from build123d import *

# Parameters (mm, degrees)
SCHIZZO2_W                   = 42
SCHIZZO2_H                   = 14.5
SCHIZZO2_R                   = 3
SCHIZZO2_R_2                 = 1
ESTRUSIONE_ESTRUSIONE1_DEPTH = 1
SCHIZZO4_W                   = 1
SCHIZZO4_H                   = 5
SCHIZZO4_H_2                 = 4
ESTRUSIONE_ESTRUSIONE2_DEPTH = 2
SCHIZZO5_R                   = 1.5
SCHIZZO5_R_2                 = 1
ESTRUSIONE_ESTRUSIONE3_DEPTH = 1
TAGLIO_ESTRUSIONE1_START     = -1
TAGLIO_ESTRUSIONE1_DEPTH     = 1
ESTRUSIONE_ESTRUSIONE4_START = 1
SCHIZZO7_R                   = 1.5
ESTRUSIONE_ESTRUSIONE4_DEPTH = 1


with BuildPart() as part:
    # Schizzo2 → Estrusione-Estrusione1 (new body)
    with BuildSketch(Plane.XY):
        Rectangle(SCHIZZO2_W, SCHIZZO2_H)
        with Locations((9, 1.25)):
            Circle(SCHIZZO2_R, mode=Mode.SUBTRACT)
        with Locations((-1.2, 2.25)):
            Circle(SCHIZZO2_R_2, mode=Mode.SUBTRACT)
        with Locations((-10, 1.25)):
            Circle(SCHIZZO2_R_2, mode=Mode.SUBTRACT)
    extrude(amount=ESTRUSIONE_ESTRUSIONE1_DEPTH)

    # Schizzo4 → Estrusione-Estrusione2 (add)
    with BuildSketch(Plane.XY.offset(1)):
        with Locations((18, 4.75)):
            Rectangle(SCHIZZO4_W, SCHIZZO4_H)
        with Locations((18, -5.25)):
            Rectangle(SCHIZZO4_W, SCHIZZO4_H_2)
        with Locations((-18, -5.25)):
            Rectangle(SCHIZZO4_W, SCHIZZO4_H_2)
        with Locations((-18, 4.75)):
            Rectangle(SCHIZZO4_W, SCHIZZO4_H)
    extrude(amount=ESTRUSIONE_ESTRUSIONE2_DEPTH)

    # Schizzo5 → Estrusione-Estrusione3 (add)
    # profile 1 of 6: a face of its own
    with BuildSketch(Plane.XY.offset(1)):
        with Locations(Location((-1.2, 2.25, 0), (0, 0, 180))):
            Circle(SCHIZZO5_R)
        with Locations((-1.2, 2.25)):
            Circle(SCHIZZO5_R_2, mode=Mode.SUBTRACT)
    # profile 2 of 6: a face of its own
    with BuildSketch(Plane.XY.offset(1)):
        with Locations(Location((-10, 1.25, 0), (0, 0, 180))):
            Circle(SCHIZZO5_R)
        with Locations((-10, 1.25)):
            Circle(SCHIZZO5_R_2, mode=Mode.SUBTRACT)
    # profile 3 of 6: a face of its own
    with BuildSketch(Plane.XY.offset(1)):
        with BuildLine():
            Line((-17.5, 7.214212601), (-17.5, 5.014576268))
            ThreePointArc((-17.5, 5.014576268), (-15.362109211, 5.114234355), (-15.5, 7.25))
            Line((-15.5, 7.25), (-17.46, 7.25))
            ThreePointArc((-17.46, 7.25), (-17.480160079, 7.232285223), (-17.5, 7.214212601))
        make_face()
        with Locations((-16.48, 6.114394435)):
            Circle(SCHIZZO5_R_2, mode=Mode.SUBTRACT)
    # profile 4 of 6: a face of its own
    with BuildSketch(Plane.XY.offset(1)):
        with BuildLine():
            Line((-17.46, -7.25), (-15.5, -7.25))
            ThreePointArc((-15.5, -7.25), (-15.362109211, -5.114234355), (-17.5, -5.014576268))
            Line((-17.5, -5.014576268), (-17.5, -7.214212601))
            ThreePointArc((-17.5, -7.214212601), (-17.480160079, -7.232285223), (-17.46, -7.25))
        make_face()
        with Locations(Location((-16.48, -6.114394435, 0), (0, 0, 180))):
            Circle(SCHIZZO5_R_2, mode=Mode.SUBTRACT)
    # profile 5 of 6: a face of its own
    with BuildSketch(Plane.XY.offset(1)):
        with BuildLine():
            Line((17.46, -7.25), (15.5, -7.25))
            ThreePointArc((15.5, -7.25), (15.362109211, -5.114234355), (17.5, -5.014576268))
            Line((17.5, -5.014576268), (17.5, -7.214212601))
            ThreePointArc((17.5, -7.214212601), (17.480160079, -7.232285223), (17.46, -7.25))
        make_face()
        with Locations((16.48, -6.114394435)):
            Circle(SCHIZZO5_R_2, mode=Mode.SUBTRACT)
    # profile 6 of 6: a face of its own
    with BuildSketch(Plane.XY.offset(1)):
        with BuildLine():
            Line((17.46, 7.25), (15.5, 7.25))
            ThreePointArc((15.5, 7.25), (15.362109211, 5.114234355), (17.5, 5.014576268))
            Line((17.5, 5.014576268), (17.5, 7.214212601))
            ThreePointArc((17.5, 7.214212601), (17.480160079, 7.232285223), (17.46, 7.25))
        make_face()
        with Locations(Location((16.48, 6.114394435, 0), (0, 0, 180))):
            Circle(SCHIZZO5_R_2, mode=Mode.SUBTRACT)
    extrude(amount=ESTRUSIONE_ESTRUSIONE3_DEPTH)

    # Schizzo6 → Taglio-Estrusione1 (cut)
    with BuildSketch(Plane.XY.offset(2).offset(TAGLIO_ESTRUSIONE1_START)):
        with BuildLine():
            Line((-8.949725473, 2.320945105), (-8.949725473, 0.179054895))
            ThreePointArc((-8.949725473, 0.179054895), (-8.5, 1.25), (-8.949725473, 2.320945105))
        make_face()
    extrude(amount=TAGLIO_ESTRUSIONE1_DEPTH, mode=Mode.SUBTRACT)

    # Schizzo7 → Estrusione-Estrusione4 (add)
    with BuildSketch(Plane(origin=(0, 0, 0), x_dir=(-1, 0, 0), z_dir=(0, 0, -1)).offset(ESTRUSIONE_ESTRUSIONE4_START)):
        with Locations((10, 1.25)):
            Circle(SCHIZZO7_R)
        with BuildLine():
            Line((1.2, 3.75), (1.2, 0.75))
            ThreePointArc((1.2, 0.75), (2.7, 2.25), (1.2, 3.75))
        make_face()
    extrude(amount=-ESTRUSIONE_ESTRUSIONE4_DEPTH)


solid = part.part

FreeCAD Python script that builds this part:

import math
import FreeCAD as App
import Part
import Sketcher
Q = App.Units.Quantity


def add_polygon(sketch, points):
    """Adds a closed chain of lines whose ends are joined by coincident constraints."""
    first, n = sketch.GeometryCount, len(points)
    for a, b in zip(points, points[1:] + points[:1]):
        sketch.addGeometry(Part.LineSegment(App.Vector(*a, 0), App.Vector(*b, 0)), False)
    for i in range(n):
        sketch.addConstraint(Sketcher.Constraint("Coincident", first + i, 2, first + (i + 1) % n, 1))

doc = App.newDocument("Part")
body = doc.addObject("PartDesign::Body", "Body")

# Sketch on XY plane
sketch1 = body.newObject("Sketcher::SketchObject", "Sketch")
sketch1.AttachmentSupport = (doc.getObject("XY_Plane"), [""])
sketch1.MapMode = "FlatFace"
add_polygon(sketch1, [(-21, 7.25), (-21, -7.25), (21, -7.25), (21, 7.25)])  # lines 0-3
sketch1.addGeometry(Part.Circle(App.Vector(-10, 1.25, 0), App.Vector(0, 0, 1), 1), False)  # 4
sketch1.addGeometry(Part.Circle(App.Vector(-1.2, 2.25, 0), App.Vector(0, 0, 1), 1), False)  # 5
sketch1.addGeometry(Part.Circle(App.Vector(9, 1.25, 0), App.Vector(0, 0, 1), 3), False)  # 6
sketch1.addConstraint([
    Sketcher.Constraint("Vertical", 0),
    Sketcher.Constraint("Horizontal", 1),
    Sketcher.Constraint("Vertical", 2),
    Sketcher.Constraint("Horizontal", 3),
    Sketcher.Constraint("Equal", 4, 5),
    Sketcher.Constraint("Symmetric", 0, 2, 2, 2, -1, 1),
    Sketcher.Constraint("Horizontal", 4, 3, 6, 3),
    Sketcher.Constraint("Diameter", 4, Q("2 mm")),
    Sketcher.Constraint("Diameter", 6, Q("6 mm")),
    Sketcher.Constraint("DistanceX", 1, 1, 1, 2, Q("42 mm")),
    Sketcher.Constraint("DistanceY", 0, 2, 0, 1, Q("14.5 mm")),
    Sketcher.Constraint("DistanceX", 4, 3, -1, 1, Q("10 mm")),
    Sketcher.Constraint("DistanceX", -1, 1, 6, 3, Q("9 mm")),
    Sketcher.Constraint("DistanceY", 4, 3, 5, 3, Q("1 mm")),
    Sketcher.Constraint("DistanceY", 6, 3, 2, 2, Q("6 mm")),
    Sketcher.Constraint("DistanceX", 5, 3, -1, 1, Q("1.2 mm")),
])
pad1 = body.newObject("PartDesign::Pad", "Pad")
pad1.Profile = sketch1
pad1.Length = 1

# Sketch on XY plane
sketch2 = body.newObject("Sketcher::SketchObject", "Sketch001")
sketch2.AttachmentSupport = (doc.getObject("XY_Plane"), [""])
sketch2.MapMode = "FlatFace"
sketch2.AttachmentOffset = App.Placement(App.Vector(0, 0, 1), App.Rotation())
add_polygon(sketch2, [(17.5, 7.25), (17.5, 2.25), (18.5, 2.25), (18.5, 7.25)])  # lines 0-3
add_polygon(sketch2, [(17.5, -3.25), (17.5, -7.25), (18.5, -7.25), (18.5, -3.25)])  # lines 4-7
add_polygon(sketch2, [(-18.5, -3.25), (-18.5, -7.25), (-17.5, -7.25), (-17.5, -3.25)])  # lines 8-11
add_polygon(sketch2, [(-18.5, 7.25), (-18.5, 2.25), (-17.5, 2.25), (-17.5, 7.25)])  # lines 12-15
sketch2.addConstraint([
    Sketcher.Constraint("Vertical", 0),
    Sketcher.Constraint("Horizontal", 1),
    Sketcher.Constraint("Vertical", 2),
    Sketcher.Constraint("Horizontal", 3),
    Sketcher.Constraint("Vertical", 4),
    Sketcher.Constraint("Horizontal", 5),
    Sketcher.Constraint("Vertical", 6),
    Sketcher.Constraint("Horizontal", 7),
    Sketcher.Constraint("Vertical", 8),
    Sketcher.Constraint("Horizontal", 9),
    Sketcher.Constraint("Vertical", 10),
    Sketcher.Constraint("Horizontal", 11),
    Sketcher.Constraint("Vertical", 12),
    Sketcher.Constraint("Horizontal", 13),
    Sketcher.Constraint("Vertical", 14),
    Sketcher.Constraint("Horizontal", 15),
    Sketcher.Constraint("Symmetric", 2, 2, 8, 2, -1, 1),
    Sketcher.Constraint("Symmetric", 4, 2, 14, 2, -1, 1),
    Sketcher.Constraint("Symmetric", 5, 2, 8, 2, -2),
    Sketcher.Constraint("Symmetric", 7, 2, 10, 2, -2),
    Sketcher.Constraint("Symmetric", 1, 2, 12, 2, -2),
    Sketcher.Constraint("Vertical", 3, 2, 4, 2),
    Sketcher.Constraint("DistanceX", 1, 1, 1, 2, Q("1 mm")),
    Sketcher.Constraint("DistanceY", 0, 2, 0, 1, Q("5 mm")),
    Sketcher.Constraint("DistanceY", 4, 2, 4, 1, Q("4 mm")),
    Sketcher.Constraint("DistanceX", 8, 2, 4, 2, Q("36 mm")),
    Sketcher.Constraint("DistanceY", 4, 2, 0, 2, Q("9.5 mm")),
])
pad2 = body.newObject("PartDesign::Pad", "Pad001")
pad2.Profile = sketch2
pad2.Length = 2

# Sketch on XY plane
sketch3 = body.newObject("Sketcher::SketchObject", "Sketch002")
sketch3.AttachmentSupport = (doc.getObject("XY_Plane"), [""])
sketch3.MapMode = "FlatFace"
sketch3.AttachmentOffset = App.Placement(App.Vector(0, 0, 1), App.Rotation())
sketch3.addGeometry([
    Part.Circle(App.Vector(-1.2, 2.25, 0), App.Vector(0, 0, 1), 1.5),  # 0
    Part.Circle(App.Vector(-1.2, 2.25, 0), App.Vector(0, 0, 1), 1),  # 1
    Part.Circle(App.Vector(-10, 1.25, 0), App.Vector(0, 0, 1), 1.5),  # 2
    Part.Circle(App.Vector(-10, 1.25, 0), App.Vector(0, 0, 1), 1),  # 3
    Part.LineSegment(App.Vector(-17.5, 7.214213, 0), App.Vector(-17.5, 5.014576, 0)),  # 4
    Part.ArcOfCircle(Part.Circle(App.Vector(-16.48, 6.114394, 0), App.Vector(0, 0, 1), 1.5), math.radians(-132.843643), math.radians(49.206605)),  # 5
    Part.LineSegment(App.Vector(-15.5, 7.25, 0), App.Vector(-17.46, 7.25, 0)),  # 6
    Part.ArcOfCircle(Part.Circle(App.Vector(-16.479998, 6.114393, 0), App.Vector(0, 0, 1), 1.500003), math.radians(130.793397), math.radians(132.843642)),  # 7
    Part.Circle(App.Vector(-16.48, 6.114394, 0), App.Vector(0, 0, 1), 1),  # 8
    Part.LineSegment(App.Vector(-17.46, -7.25, 0), App.Vector(-15.5, -7.25, 0)),  # 9
    Part.ArcOfCircle(Part.Circle(App.Vector(-16.48, -6.114394, 0), App.Vector(0, 0, 1), 1.5), math.radians(-49.206605), math.radians(132.843643)),  # 10
    Part.LineSegment(App.Vector(-17.5, -5.014576, 0), App.Vector(-17.5, -7.214213, 0)),  # 11
    Part.ArcOfCircle(Part.Circle(App.Vector(-16.479998, -6.114393, 0), App.Vector(0, 0, 1), 1.500003), math.radians(-132.843642), math.radians(-130.793397)),  # 12
    Part.Circle(App.Vector(-16.48, -6.114394, 0), App.Vector(0, 0, 1), 1),  # 13
    Part.LineSegment(App.Vector(15.5, -7.25, 0), App.Vector(17.46, -7.25, 0)),  # 14
    Part.ArcOfCircle(Part.Circle(App.Vector(16.479998, -6.114393, 0), App.Vector(0, 0, 1), 1.500003), math.radians(-49.206603), math.radians(-47.156358)),  # 15
    Part.LineSegment(App.Vector(17.5, -7.214213, 0), App.Vector(17.5, -5.014576, 0)),  # 16
    Part.ArcOfCircle(Part.Circle(App.Vector(16.48, -6.114394, 0), App.Vector(0, 0, 1), 1.5), math.radians(47.156357), math.radians(229.206605)),  # 17
    Part.Circle(App.Vector(16.48, -6.114394, 0), App.Vector(0, 0, 1), 1),  # 18
    Part.LineSegment(App.Vector(17.46, 7.25, 0), App.Vector(15.5, 7.25, 0)),  # 19
    Part.ArcOfCircle(Part.Circle(App.Vector(16.48, 6.114394, 0), App.Vector(0, 0, 1), 1.5), math.radians(130.793395), math.radians(312.843643)),  # 20
    Part.LineSegment(App.Vector(17.5, 5.014576, 0), App.Vector(17.5, 7.214213, 0)),  # 21
    Part.ArcOfCircle(Part.Circle(App.Vector(16.479998, 6.114393, 0), App.Vector(0, 0, 1), 1.500003), math.radians(47.156358), math.radians(49.206603)),  # 22
    Part.Circle(App.Vector(16.48, 6.114394, 0), App.Vector(0, 0, 1), 1),  # 23
], False)
sketch3.addConstraint([
    Sketcher.Constraint("Coincident", 4, 2, 5, 1),
    Sketcher.Constraint("Coincident", 5, 2, 6, 1),
    Sketcher.Constraint("Coincident", 6, 2, 7, 1),
    Sketcher.Constraint("Coincident", 7, 2, 4, 1),
    Sketcher.Constraint("Coincident", 9, 2, 10, 1),
    Sketcher.Constraint("Coincident", 10, 2, 11, 1),
    Sketcher.Constraint("Coincident", 11, 2, 12, 1),
    Sketcher.Constraint("Coincident", 12, 2, 9, 1),
    Sketcher.Constraint("Coincident", 14, 2, 15, 1),
    Sketcher.Constraint("Coincident", 15, 2, 16, 1),
    Sketcher.Constraint("Coincident", 16, 2, 17, 1),
    Sketcher.Constraint("Coincident", 17, 2, 14, 1),
    Sketcher.Constraint("Coincident", 19, 2, 20, 1),
    Sketcher.Constraint("Coincident", 20, 2, 21, 1),
    Sketcher.Constraint("Coincident", 21, 2, 22, 1),
    Sketcher.Constraint("Coincident", 22, 2, 19, 1),
    Sketcher.Constraint("Vertical", 4),
    Sketcher.Constraint("Horizontal", 6),
    Sketcher.Constraint("Horizontal", 9),
    Sketcher.Constraint("Vertical", 11),
    Sketcher.Constraint("Horizontal", 14),
    Sketcher.Constraint("Vertical", 16),
    Sketcher.Constraint("Horizontal", 19),
    Sketcher.Constraint("Vertical", 21),
    Sketcher.Constraint("Coincident", 1, 3, 0, 3),
    Sketcher.Constraint("Coincident", 3, 3, 2, 3),
    Sketcher.Constraint("Coincident", 7, 3, 5, 3),
    Sketcher.Constraint("Coincident", 8, 3, 5, 3),
    Sketcher.Constraint("Coincident", 12, 3, 10, 3),
    Sketcher.Constraint("Coincident", 13, 3, 10, 3),
    Sketcher.Constraint("Coincident", 17, 3, 15, 3),
    Sketcher.Constraint("Coincident", 18, 3, 15, 3),
    Sketcher.Constraint("Coincident", 22, 3, 20, 3),
    Sketcher.Constraint("Coincident", 23, 3, 20, 3),
    Sketcher.Constraint("Equal", 0, 2),
    Sketcher.Constraint("Equal", 1, 3),
    Sketcher.Constraint("Equal", 2, 5),
    Sketcher.Constraint("Equal", 3, 8),
    Sketcher.Constraint("Equal", 5, 10),
    Sketcher.Constraint("Equal", 7, 12),
    Sketcher.Constraint("Equal", 8, 13),
    Sketcher.Constraint("Equal", 12, 15),
    Sketcher.Constraint("Equal", 10, 17),
    Sketcher.Constraint("Equal", 13, 18),
    Sketcher.Constraint("Equal", 17, 20),
    Sketcher.Constraint("Equal", 15, 22),
    Sketcher.Constraint("Equal", 18, 23),
    Sketcher.Constraint("Symmetric", 5, 3, 15, 3, -1, 1),
    Sketcher.Constraint("Symmetric", 10, 3, 20, 3, -1, 1),
    Sketcher.Constraint("Symmetric", 10, 3, 15, 3, -2),
    Sketcher.Constraint("Horizontal", 12, 2, 14, 2),
    Sketcher.Constraint("Horizontal", 11, 2, 15, 2),
    Sketcher.Constraint("Horizontal", 6, 2, 19, 2),
    Sketcher.Constraint("Horizontal", 4, 2, 20, 2),
    Sketcher.Constraint("Vertical", 5, 2, 9, 2),
    Sketcher.Constraint("Vertical", 7, 2, 10, 2),
    Sketcher.Constraint("Diameter", 0, Q("3 mm")),
    Sketcher.Constraint("Diameter", 1, Q("2 mm")),
    Sketcher.Constraint("DistanceX", 2, 3, -1, 1, Q("10 mm")),
    Sketcher.Constraint("DistanceY", 2, 3, 0, 3, Q("1 mm")),
    Sketcher.Constraint("DistanceX", 4, 2, 5, 2, Q("2 mm")),
    Sketcher.Constraint("DistanceY", 2, 3, 5, 2, Q("6 mm")),
    Sketcher.Constraint("DistanceX", 6, 2, 6, 1, Q("1.96 mm")),
    Sketcher.Constraint("DistanceX", 0, 3, -1, 1, Q("1.2 mm")),
    Sketcher.Constraint("DistanceX", 4, 2, -1, 1, Q("17.5 mm")),
    Sketcher.Constraint("DistanceY", 9, 2, 2, 3, Q("8.5 mm")),
    Sketcher.Constraint("DistanceX", 5, 3, -1, 1, Q("16.48 mm")),
])
pad3 = body.newObject("PartDesign::Pad", "Pad002")
pad3.Profile = sketch3
pad3.Length = 1

# Sketch on XY plane
sketch4 = body.newObject("Sketcher::SketchObject", "Sketch003")
sketch4.AttachmentSupport = (doc.getObject("XY_Plane"), [""])
sketch4.MapMode = "FlatFace"
sketch4.AttachmentOffset = App.Placement(App.Vector(0, 0, 1), App.Rotation())
sketch4.addGeometry([
    Part.LineSegment(App.Vector(-8.949725, 2.320945, 0), App.Vector(-8.949725, 0.179055, 0)),
    Part.ArcOfCircle(Part.Circle(App.Vector(-10, 1.25, 0), App.Vector(0, 0, 1), 1.5), math.radians(-45.558311), math.radians(45.558311)),
], False)
sketch4.addConstraint([
    Sketcher.Constraint("Coincident", 0, 1, 1, 2),
    Sketcher.Constraint("Coincident", 1, 1, 0, 2),
    Sketcher.Constraint("Vertical", 0),
    Sketcher.Constraint("Radius", 1, Q("1.5 mm")),
    Sketcher.Constraint("DistanceX", 1, 3, -1, 1, Q("10 mm")),
    Sketcher.Constraint("DistanceY", -1, 1, 1, 3, Q("1.25 mm")),
    Sketcher.Constraint("DistanceY", 0, 2, 0, 1, Q("2.14189 mm")),
])
pocket1 = body.newObject("PartDesign::Pocket", "Pocket")
pocket1.Profile = sketch4
pocket1.Length = 1
pocket1.Reversed = True

# Sketch on XY plane
sketch5 = body.newObject("Sketcher::SketchObject", "Sketch004")
sketch5.AttachmentSupport = (doc.getObject("XY_Plane"), [""])
sketch5.MapMode = "FlatFace"
sketch5.AttachmentOffset = App.Placement(App.Vector(0, 0, -1), App.Rotation())
sketch5.addGeometry([
    Part.Circle(App.Vector(-10, 1.25, 0), App.Vector(0, 0, 1), 1.5),
    Part.LineSegment(App.Vector(-1.2, 3.75, 0), App.Vector(-1.2, 0.75, 0)),
    Part.ArcOfCircle(Part.Circle(App.Vector(-1.2, 2.25, 0), App.Vector(0, 0, 1), 1.5), math.radians(90), math.radians(270)),
], False)
sketch5.addConstraint([
    Sketcher.Constraint("Coincident", 1, 1, 2, 1),
    Sketcher.Constraint("Coincident", 2, 2, 1, 2),
    Sketcher.Constraint("Vertical", 1),
    Sketcher.Constraint("Equal", 0, 2),
    Sketcher.Constraint("Vertical", 2, 3, 1, 1),
    Sketcher.Constraint("Diameter", 0, Q("3 mm")),
    Sketcher.Constraint("DistanceX", 0, 3, -1, 1, Q("10 mm")),
    Sketcher.Constraint("DistanceY", 0, 3, 2, 3, Q("1 mm")),
    Sketcher.Constraint("DistanceX", 2, 3, -1, 1, Q("1.2 mm")),
    Sketcher.Constraint("DistanceY", -1, 1, 0, 3, Q("1.25 mm")),
])
pad4 = body.newObject("PartDesign::Pad", "Pad003")
pad4.Profile = sketch5
pad4.Length = 1

doc.recompute()
